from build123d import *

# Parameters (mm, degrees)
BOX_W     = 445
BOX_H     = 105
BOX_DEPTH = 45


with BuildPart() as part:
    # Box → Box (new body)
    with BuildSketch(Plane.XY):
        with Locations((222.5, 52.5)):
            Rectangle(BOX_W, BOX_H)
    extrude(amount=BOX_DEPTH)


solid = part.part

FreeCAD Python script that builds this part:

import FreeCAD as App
import Part
import Sketcher

V = App.Vector
Q = App.Units.Quantity

doc = App.newDocument("Part")
body = doc.addObject("PartDesign::Body", "Body")

sketch1 = body.newObject("Sketcher::SketchObject", "Sketch")
sketch1.AttachmentSupport = (doc.getObject("XY_Plane"), [""])
sketch1.MapMode = "FlatFace"
sketch1.addGeometry([
    Part.LineSegment(V(0, 105, 0), V(0, 0, 0)),
    Part.LineSegment(V(0, 0, 0), V(445, 0, 0)),
    Part.LineSegment(V(445, 0, 0), V(445, 105, 0)),
    Part.LineSegment(V(445, 105, 0), V(0, 105, 0)),
], False)
sketch1.addConstraint([
    Sketcher.Constraint("Coincident", 0, 2, 1, 1),
    Sketcher.Constraint("Coincident", 1, 2, 2, 1),
    Sketcher.Constraint("Coincident", 2, 2, 3, 1),
    Sketcher.Constraint("Coincident", 3, 2, 0, 1),
    Sketcher.Constraint("Vertical", 0),
    Sketcher.Constraint("Horizontal", 1),
    Sketcher.Constraint("Vertical", 2),
    Sketcher.Constraint("Horizontal", 3),
    Sketcher.Constraint("Coincident", 0, 2, -1, 1),
    Sketcher.Constraint("DistanceX", 1, 1, 1, 2, Q("445 mm")),
    Sketcher.Constraint("DistanceY", 0, 2, 0, 1, Q("105 mm")),
])
pad1 = body.newObject("PartDesign::Pad", "Pad")
pad1.Profile = sketch1
pad1.Length = 45

doc.recompute()
